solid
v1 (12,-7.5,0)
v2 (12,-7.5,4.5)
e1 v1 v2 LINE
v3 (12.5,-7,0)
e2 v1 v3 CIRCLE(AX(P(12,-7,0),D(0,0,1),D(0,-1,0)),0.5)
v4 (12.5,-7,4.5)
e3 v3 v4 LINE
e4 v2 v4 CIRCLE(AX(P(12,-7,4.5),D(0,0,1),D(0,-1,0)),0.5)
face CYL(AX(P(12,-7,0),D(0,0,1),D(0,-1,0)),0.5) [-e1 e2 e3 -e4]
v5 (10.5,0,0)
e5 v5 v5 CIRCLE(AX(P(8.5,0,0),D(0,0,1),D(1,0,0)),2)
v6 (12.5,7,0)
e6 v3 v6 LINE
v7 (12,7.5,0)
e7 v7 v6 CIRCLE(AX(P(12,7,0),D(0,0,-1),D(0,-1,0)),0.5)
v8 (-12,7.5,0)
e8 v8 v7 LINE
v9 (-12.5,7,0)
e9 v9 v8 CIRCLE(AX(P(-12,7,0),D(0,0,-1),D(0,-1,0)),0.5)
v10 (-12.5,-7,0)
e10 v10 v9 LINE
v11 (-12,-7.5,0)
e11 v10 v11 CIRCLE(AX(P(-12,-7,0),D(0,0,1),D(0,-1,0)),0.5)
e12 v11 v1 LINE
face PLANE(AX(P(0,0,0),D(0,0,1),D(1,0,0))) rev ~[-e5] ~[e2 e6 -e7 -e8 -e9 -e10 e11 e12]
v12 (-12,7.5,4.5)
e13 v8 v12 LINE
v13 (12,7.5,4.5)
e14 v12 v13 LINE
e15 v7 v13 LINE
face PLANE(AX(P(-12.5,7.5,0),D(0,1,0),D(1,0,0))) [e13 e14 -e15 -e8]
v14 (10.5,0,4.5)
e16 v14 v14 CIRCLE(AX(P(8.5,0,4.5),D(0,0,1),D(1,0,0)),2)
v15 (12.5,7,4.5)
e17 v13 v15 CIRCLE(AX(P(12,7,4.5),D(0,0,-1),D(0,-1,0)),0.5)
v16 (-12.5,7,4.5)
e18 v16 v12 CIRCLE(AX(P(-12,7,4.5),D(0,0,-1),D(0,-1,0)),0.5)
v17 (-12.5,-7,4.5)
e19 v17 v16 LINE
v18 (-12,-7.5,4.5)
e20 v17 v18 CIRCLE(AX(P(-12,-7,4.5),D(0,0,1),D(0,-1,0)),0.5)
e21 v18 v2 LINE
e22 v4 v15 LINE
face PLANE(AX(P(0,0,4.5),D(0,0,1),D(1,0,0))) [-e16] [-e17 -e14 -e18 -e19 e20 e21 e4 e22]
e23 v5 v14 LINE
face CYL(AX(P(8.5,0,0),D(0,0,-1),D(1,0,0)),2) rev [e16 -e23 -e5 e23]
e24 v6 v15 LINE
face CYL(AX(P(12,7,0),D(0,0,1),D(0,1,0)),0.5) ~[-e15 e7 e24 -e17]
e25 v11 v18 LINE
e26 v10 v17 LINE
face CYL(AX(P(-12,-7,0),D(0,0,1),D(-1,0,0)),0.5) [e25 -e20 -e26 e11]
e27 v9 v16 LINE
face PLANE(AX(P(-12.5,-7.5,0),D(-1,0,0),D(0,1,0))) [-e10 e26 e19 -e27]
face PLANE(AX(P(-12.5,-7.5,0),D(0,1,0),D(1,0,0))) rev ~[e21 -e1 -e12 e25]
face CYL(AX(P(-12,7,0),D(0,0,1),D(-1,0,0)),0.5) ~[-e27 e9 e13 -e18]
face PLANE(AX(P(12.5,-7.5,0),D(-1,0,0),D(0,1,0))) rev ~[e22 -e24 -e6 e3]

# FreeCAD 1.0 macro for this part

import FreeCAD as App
import Part
import Sketcher

V = App.Vector


def edges_at(feature, points):
    """Names of the edges that pass closest to the given points."""
    edges = feature.Shape.Edges
    near = lambda p: min(range(len(edges)), key=lambda i: edges[i].distToShape(Part.Vertex(*p))[0])
    return sorted({f"Edge{near(p) + 1}" for p in points})


def add_polygon(sketch, points):
    """Adds a closed chain of lines whose ends are joined by coincident constraints."""
    first, n = sketch.GeometryCount, len(points)
    for a, b in zip(points, points[1:] + points[:1]):
        sketch.addGeometry(Part.LineSegment(App.Vector(*a, 0), App.Vector(*b, 0)), False)
    for i in range(n):
        sketch.addConstraint(Sketcher.Constraint("Coincident", first + i, 2, first + (i + 1) % n, 1))

doc = App.newDocument("Part")
params = doc.addObject("Spreadsheet::Sheet", "Params")
for row, (alias, value) in enumerate([
    ("sketch1_diameter", "4 mm"),
    ("sketch1_width", "25 mm"),
    ("sketch1_height", "15 mm"),
    ("pad1_length", "4.5 mm"),
    ("fillet_radius", "0.5 mm"),
], start=1):
    params.set(f"A{row}", alias)
    params.set(f"B{row}", "=" + value)
    params.setAlias(f"B{row}", alias)

body = doc.addObject("PartDesign::Body", "Body")

sketch1 = body.newObject("Sketcher::SketchObject", "Sketch")
sketch1.AttachmentSupport = (doc.getObject("XY_Plane"), [""])
sketch1.MapMode = "FlatFace"
add_polygon(sketch1, [(-12.5, 7.5), (-12.5, -7.5), (12.5, -7.5), (12.5, 7.5)])
sketch1.addGeometry(Part.Circle(V(8.5, 0, 0), V(0, 0, 1), 2), False)
sketch1.addConstraint(Sketcher.Constraint("Vertical", 0))
sketch1.addConstraint(Sketcher.Constraint("Horizontal", 1))
sketch1.addConstraint(Sketcher.Constraint("Vertical", 2))
sketch1.addConstraint(Sketcher.Constraint("Horizontal", 3))
sketch1.addConstraint(Sketcher.Constraint("Symmetric", 0, 2, 2, 2, -1, 1))
sketch1.addConstraint(Sketcher.Constraint("PointOnObject", 4, 3, -1))
sketch1.addConstraint(Sketcher.Constraint("Diameter", 4, 4.0))
sketch1.addConstraint(Sketcher.Constraint("DistanceX", 1, 1, 1, 2, 25.0))
sketch1.addConstraint(Sketcher.Constraint("DistanceY", 0, 2, 0, 1, 15.0))
sketch1.addConstraint(Sketcher.Constraint("DistanceX", 0, 2, 4, 3, 21.0))
sketch1.setExpression("Constraints[10]", "Params.sketch1_diameter")
sketch1.setExpression("Constraints[11]", "Params.sketch1_width")
sketch1.setExpression("Constraints[12]", "Params.sketch1_height")
pad1 = body.newObject("PartDesign::Pad", "Pad")
pad1.Profile = sketch1
pad1.setExpression("Length", "Params.pad1_length")
doc.recompute()

fillet = body.newObject("PartDesign::Fillet", "Fillet")
fillet.Base = (pad1, edges_at(pad1, [
    (-12.5, 7.5, 2.25),
    (12.5, 7.5, 2.25),
    (12.5, -7.5, 2.25),
    (-12.5, -7.5, 2.25),
]))
fillet.setExpression("Radius", "Params.fillet_radius")

doc.recompute()
